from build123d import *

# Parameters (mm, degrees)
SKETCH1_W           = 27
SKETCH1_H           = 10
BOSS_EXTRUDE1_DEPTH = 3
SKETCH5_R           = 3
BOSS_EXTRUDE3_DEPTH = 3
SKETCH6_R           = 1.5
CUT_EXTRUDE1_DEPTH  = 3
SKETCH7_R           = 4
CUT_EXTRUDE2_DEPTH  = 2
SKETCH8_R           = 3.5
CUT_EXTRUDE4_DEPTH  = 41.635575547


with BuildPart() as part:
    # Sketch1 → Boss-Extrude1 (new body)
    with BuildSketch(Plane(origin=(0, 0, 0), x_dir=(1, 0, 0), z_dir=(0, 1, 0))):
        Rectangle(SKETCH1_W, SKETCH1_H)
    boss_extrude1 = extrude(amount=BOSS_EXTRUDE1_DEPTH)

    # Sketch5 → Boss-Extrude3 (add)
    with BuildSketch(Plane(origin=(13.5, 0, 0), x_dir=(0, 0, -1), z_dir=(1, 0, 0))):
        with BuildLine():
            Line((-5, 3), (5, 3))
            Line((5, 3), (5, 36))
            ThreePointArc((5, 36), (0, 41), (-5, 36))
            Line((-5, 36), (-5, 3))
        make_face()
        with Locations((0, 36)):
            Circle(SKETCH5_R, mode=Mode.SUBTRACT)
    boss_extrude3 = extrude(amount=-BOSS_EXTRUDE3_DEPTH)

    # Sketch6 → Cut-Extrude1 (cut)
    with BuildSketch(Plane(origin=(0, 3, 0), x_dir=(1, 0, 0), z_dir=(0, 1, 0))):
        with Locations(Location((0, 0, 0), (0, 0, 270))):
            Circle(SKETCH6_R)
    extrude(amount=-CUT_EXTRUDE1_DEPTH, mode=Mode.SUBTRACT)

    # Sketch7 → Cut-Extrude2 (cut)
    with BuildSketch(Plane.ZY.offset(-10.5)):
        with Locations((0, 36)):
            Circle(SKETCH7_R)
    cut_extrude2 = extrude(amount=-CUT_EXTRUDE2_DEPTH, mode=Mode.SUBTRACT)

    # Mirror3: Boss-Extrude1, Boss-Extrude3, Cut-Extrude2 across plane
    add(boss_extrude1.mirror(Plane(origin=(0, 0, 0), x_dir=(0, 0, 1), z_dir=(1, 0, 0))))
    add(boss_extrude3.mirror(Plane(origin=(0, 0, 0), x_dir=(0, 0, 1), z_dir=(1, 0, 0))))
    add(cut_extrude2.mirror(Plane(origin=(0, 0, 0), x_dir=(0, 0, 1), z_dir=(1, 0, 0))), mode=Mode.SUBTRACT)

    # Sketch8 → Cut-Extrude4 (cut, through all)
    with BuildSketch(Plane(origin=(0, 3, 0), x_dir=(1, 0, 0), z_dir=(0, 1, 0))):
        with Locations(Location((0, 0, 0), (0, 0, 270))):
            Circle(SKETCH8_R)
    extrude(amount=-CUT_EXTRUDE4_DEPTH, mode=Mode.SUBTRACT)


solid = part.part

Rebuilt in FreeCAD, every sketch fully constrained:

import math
import FreeCAD as App
import Part
import Sketcher

V = App.Vector


def add_polygon(sketch, points):
    """Adds a closed chain of lines whose ends are joined by coincident constraints."""
    first, n = sketch.GeometryCount, len(points)
    for a, b in zip(points, points[1:] + points[:1]):
        sketch.addGeometry(Part.LineSegment(App.Vector(*a, 0), App.Vector(*b, 0)), False)
    for i in range(n):
        sketch.addConstraint(Sketcher.Constraint("Coincident", first + i, 2, first + (i + 1) % n, 1))

doc = App.newDocument("Part")
params = doc.addObject("Spreadsheet::Sheet", "Params")
for row, (alias, value) in enumerate([
    ("sketch1_width", "27 mm"),
    ("sketch1_height", "10 mm"),
    ("pad1_length", "3 mm"),
    ("sketch2_diameter", "6 mm"),
    ("sketch2_radius", "5 mm"),
    ("sketch2_width", "33 mm"),
    ("pad2_length", "3 mm"),
    ("sketch3_diameter", "3 mm"),
    ("pocket1_length", "3 mm"),
    ("sketch4_diameter", "8 mm"),
    ("pocket2_length", "2 mm"),
    ("sketch5_diameter", "7 mm"),
], start=1):
    params.set(f"A{row}", alias)
    params.set(f"B{row}", "=" + value)
    params.setAlias(f"B{row}", alias)

body = doc.addObject("PartDesign::Body", "Body")

# Sketch on XZ plane
sketch1 = doc.addObject("Sketcher::SketchObject", "Sketch")
body.addObject(sketch1)
sketch1.AttachmentSupport = (doc.XZ_Plane, [""])
sketch1.MapMode = "FlatFace"
add_polygon(sketch1, [(-14, -5), (-14, 5), (14, 5), (14, -5)])  # lines 0-3
sketch1.addConstraint(Sketcher.Constraint("Vertical", 0))
sketch1.addConstraint(Sketcher.Constraint("Horizontal", 1))
sketch1.addConstraint(Sketcher.Constraint("Vertical", 2))
sketch1.addConstraint(Sketcher.Constraint("Horizontal", 3))
sketch1.addConstraint(Sketcher.Constraint("Symmetric", 0, 2, 2, 2, -1, 1))
sketch1.addConstraint(Sketcher.Constraint("DistanceX", 1, 1, 1, 2, 27.0))
sketch1.addConstraint(Sketcher.Constraint("DistanceY", 0, 1, 0, 2, 10.0))
sketch1.setExpression("Constraints[9]", "Params.sketch1_width")
sketch1.setExpression("Constraints[10]", "Params.sketch1_height")
pad1 = doc.addObject("PartDesign::Pad", "Pad")
body.addObject(pad1)
pad1.Profile = sketch1
pad1.setExpression("Length", "Params.pad1_length")
pad1.Reversed = True

# Sketch on YZ plane
sketch2 = doc.addObject("Sketcher::SketchObject", "Sketch001")
body.addObject(sketch2)
sketch2.AttachmentSupport = (doc.YZ_Plane, [""])
sketch2.MapMode = "FlatFace"
sketch2.AttachmentOffset = App.Placement(V(0, 0, 13.5), App.Rotation())
sketch2.addGeometry(Part.LineSegment(V(3, 5, 0), V(3, -5, 0)), False)
sketch2.addGeometry(Part.LineSegment(V(3, -5, 0), V(36, -5, 0)), False)
sketch2.addGeometry(Part.ArcOfCircle(Part.Circle(V(36, 0, 0), V(0, 0, 1), 5), math.radians(-90), math.radians(90)), False)
sketch2.addGeometry(Part.LineSegment(V(36, 5, 0), V(3, 5, 0)), False)
sketch2.addGeometry(Part.Circle(V(36, 0, 0), V(0, 0, 1), 3), False)
sketch2.addConstraint(Sketcher.Constraint("Coincident", 0, 2, 1, 1))
sketch2.addConstraint(Sketcher.Constraint("Tangent", 1, 2, 2, 1))
sketch2.addConstraint(Sketcher.Constraint("Tangent", 2, 2, 3, 1))
sketch2.addConstraint(Sketcher.Constraint("Coincident", 3, 2, 0, 1))
sketch2.addConstraint(Sketcher.Constraint("Vertical", 0))
sketch2.addConstraint(Sketcher.Constraint("Horizontal", 1))
sketch2.addConstraint(Sketcher.Constraint("Horizontal", 3))
sketch2.addConstraint(Sketcher.Constraint("Coincident", 4, 3, 2, 3))
sketch2.addConstraint(Sketcher.Constraint("PointOnObject", 2, 3, -1))
sketch2.addConstraint(Sketcher.Constraint("Diameter", 4, 6.0))
sketch2.addConstraint(Sketcher.Constraint("Radius", 2, 5.0))
sketch2.addConstraint(Sketcher.Constraint("DistanceX", 1, 1, 1, 2, 33.0))
sketch2.addConstraint(Sketcher.Constraint("DistanceX", -1, 1, 2, 3, 36.0))
sketch2.setExpression("Constraints[9]", "Params.sketch2_diameter")
sketch2.setExpression("Constraints[10]", "Params.sketch2_radius")
sketch2.setExpression("Constraints[11]", "Params.sketch2_width")
pad2 = doc.addObject("PartDesign::Pad", "Pad001")
body.addObject(pad2)
pad2.Profile = sketch2
pad2.setExpression("Length", "Params.pad2_length")
pad2.Reversed = True

# Sketch on XZ plane
sketch3 = doc.addObject("Sketcher::SketchObject", "Sketch002")
body.addObject(sketch3)
sketch3.AttachmentSupport = (doc.XZ_Plane, [""])
sketch3.MapMode = "FlatFace"
sketch3.AttachmentOffset = App.Placement(V(0, 0, -3), App.Rotation())
sketch3.addGeometry(Part.Circle(V(0, 0, 0), V(0, 0, 1), 1.5), False)
sketch3.addConstraint(Sketcher.Constraint("Coincident", 0, 3, -1, 1))
sketch3.addConstraint(Sketcher.Constraint("Diameter", 0, 3.0))
sketch3.setExpression("Constraints[1]", "Params.sketch3_diameter")
pocket1 = doc.addObject("PartDesign::Pocket", "Pocket")
body.addObject(pocket1)
pocket1.Profile = sketch3
pocket1.setExpression("Length", "Params.pocket1_length")
pocket1.Reversed = True

# Sketch on YZ plane
sketch4 = doc.addObject("Sketcher::SketchObject", "Sketch003")
body.addObject(sketch4)
sketch4.AttachmentSupport = (doc.YZ_Plane, [""])
sketch4.MapMode = "FlatFace"
sketch4.AttachmentOffset = App.Placement(V(0, 0, 10.5), App.Rotation())
sketch4.addGeometry(Part.Circle(V(36, 0, 0), V(0, 0, 1), 4), False)
sketch4.addConstraint(Sketcher.Constraint("PointOnObject", 0, 3, -1))
sketch4.addConstraint(Sketcher.Constraint("Diameter", 0, 8.0))
sketch4.addConstraint(Sketcher.Constraint("DistanceX", -1, 1, 0, 3, 36.0))
sketch4.setExpression("Constraints[1]", "Params.sketch4_diameter")
pocket2 = doc.addObject("PartDesign::Pocket", "Pocket001")
body.addObject(pocket2)
pocket2.Profile = sketch4
pocket2.setExpression("Length", "Params.pocket2_length")
pocket2.Reversed = True
doc.recompute()

mirrored = doc.addObject("PartDesign::Mirrored", "Mirrored")
body.addObject(mirrored)
mirrored.Originals = [pad1, pad2, pocket2]
mirrored.MirrorPlane = (doc.YZ_Plane, [""])
body.Tip = mirrored

# Sketch on XZ plane
sketch5 = doc.addObject("Sketcher::SketchObject", "Sketch004")
body.addObject(sketch5)
sketch5.AttachmentSupport = (doc.XZ_Plane, [""])
sketch5.MapMode = "FlatFace"
sketch5.AttachmentOffset = App.Placement(V(0, 0, -3), App.Rotation())
sketch5.addGeometry(Part.Circle(V(0, 0, 0), V(0, 0, 1), 3.5), False)
sketch5.addConstraint(Sketcher.Constraint("Coincident", 0, 3, -1, 1))
sketch5.addConstraint(Sketcher.Constraint("Diameter", 0, 7.0))
sketch5.setExpression("Constraints[1]", "Params.sketch5_diameter")
pocket3 = doc.addObject("PartDesign::Pocket", "Pocket002")
body.addObject(pocket3)
pocket3.Profile = sketch5
pocket3.Type = "ThroughAll"
pocket3.Reversed = True

doc.recompute()
